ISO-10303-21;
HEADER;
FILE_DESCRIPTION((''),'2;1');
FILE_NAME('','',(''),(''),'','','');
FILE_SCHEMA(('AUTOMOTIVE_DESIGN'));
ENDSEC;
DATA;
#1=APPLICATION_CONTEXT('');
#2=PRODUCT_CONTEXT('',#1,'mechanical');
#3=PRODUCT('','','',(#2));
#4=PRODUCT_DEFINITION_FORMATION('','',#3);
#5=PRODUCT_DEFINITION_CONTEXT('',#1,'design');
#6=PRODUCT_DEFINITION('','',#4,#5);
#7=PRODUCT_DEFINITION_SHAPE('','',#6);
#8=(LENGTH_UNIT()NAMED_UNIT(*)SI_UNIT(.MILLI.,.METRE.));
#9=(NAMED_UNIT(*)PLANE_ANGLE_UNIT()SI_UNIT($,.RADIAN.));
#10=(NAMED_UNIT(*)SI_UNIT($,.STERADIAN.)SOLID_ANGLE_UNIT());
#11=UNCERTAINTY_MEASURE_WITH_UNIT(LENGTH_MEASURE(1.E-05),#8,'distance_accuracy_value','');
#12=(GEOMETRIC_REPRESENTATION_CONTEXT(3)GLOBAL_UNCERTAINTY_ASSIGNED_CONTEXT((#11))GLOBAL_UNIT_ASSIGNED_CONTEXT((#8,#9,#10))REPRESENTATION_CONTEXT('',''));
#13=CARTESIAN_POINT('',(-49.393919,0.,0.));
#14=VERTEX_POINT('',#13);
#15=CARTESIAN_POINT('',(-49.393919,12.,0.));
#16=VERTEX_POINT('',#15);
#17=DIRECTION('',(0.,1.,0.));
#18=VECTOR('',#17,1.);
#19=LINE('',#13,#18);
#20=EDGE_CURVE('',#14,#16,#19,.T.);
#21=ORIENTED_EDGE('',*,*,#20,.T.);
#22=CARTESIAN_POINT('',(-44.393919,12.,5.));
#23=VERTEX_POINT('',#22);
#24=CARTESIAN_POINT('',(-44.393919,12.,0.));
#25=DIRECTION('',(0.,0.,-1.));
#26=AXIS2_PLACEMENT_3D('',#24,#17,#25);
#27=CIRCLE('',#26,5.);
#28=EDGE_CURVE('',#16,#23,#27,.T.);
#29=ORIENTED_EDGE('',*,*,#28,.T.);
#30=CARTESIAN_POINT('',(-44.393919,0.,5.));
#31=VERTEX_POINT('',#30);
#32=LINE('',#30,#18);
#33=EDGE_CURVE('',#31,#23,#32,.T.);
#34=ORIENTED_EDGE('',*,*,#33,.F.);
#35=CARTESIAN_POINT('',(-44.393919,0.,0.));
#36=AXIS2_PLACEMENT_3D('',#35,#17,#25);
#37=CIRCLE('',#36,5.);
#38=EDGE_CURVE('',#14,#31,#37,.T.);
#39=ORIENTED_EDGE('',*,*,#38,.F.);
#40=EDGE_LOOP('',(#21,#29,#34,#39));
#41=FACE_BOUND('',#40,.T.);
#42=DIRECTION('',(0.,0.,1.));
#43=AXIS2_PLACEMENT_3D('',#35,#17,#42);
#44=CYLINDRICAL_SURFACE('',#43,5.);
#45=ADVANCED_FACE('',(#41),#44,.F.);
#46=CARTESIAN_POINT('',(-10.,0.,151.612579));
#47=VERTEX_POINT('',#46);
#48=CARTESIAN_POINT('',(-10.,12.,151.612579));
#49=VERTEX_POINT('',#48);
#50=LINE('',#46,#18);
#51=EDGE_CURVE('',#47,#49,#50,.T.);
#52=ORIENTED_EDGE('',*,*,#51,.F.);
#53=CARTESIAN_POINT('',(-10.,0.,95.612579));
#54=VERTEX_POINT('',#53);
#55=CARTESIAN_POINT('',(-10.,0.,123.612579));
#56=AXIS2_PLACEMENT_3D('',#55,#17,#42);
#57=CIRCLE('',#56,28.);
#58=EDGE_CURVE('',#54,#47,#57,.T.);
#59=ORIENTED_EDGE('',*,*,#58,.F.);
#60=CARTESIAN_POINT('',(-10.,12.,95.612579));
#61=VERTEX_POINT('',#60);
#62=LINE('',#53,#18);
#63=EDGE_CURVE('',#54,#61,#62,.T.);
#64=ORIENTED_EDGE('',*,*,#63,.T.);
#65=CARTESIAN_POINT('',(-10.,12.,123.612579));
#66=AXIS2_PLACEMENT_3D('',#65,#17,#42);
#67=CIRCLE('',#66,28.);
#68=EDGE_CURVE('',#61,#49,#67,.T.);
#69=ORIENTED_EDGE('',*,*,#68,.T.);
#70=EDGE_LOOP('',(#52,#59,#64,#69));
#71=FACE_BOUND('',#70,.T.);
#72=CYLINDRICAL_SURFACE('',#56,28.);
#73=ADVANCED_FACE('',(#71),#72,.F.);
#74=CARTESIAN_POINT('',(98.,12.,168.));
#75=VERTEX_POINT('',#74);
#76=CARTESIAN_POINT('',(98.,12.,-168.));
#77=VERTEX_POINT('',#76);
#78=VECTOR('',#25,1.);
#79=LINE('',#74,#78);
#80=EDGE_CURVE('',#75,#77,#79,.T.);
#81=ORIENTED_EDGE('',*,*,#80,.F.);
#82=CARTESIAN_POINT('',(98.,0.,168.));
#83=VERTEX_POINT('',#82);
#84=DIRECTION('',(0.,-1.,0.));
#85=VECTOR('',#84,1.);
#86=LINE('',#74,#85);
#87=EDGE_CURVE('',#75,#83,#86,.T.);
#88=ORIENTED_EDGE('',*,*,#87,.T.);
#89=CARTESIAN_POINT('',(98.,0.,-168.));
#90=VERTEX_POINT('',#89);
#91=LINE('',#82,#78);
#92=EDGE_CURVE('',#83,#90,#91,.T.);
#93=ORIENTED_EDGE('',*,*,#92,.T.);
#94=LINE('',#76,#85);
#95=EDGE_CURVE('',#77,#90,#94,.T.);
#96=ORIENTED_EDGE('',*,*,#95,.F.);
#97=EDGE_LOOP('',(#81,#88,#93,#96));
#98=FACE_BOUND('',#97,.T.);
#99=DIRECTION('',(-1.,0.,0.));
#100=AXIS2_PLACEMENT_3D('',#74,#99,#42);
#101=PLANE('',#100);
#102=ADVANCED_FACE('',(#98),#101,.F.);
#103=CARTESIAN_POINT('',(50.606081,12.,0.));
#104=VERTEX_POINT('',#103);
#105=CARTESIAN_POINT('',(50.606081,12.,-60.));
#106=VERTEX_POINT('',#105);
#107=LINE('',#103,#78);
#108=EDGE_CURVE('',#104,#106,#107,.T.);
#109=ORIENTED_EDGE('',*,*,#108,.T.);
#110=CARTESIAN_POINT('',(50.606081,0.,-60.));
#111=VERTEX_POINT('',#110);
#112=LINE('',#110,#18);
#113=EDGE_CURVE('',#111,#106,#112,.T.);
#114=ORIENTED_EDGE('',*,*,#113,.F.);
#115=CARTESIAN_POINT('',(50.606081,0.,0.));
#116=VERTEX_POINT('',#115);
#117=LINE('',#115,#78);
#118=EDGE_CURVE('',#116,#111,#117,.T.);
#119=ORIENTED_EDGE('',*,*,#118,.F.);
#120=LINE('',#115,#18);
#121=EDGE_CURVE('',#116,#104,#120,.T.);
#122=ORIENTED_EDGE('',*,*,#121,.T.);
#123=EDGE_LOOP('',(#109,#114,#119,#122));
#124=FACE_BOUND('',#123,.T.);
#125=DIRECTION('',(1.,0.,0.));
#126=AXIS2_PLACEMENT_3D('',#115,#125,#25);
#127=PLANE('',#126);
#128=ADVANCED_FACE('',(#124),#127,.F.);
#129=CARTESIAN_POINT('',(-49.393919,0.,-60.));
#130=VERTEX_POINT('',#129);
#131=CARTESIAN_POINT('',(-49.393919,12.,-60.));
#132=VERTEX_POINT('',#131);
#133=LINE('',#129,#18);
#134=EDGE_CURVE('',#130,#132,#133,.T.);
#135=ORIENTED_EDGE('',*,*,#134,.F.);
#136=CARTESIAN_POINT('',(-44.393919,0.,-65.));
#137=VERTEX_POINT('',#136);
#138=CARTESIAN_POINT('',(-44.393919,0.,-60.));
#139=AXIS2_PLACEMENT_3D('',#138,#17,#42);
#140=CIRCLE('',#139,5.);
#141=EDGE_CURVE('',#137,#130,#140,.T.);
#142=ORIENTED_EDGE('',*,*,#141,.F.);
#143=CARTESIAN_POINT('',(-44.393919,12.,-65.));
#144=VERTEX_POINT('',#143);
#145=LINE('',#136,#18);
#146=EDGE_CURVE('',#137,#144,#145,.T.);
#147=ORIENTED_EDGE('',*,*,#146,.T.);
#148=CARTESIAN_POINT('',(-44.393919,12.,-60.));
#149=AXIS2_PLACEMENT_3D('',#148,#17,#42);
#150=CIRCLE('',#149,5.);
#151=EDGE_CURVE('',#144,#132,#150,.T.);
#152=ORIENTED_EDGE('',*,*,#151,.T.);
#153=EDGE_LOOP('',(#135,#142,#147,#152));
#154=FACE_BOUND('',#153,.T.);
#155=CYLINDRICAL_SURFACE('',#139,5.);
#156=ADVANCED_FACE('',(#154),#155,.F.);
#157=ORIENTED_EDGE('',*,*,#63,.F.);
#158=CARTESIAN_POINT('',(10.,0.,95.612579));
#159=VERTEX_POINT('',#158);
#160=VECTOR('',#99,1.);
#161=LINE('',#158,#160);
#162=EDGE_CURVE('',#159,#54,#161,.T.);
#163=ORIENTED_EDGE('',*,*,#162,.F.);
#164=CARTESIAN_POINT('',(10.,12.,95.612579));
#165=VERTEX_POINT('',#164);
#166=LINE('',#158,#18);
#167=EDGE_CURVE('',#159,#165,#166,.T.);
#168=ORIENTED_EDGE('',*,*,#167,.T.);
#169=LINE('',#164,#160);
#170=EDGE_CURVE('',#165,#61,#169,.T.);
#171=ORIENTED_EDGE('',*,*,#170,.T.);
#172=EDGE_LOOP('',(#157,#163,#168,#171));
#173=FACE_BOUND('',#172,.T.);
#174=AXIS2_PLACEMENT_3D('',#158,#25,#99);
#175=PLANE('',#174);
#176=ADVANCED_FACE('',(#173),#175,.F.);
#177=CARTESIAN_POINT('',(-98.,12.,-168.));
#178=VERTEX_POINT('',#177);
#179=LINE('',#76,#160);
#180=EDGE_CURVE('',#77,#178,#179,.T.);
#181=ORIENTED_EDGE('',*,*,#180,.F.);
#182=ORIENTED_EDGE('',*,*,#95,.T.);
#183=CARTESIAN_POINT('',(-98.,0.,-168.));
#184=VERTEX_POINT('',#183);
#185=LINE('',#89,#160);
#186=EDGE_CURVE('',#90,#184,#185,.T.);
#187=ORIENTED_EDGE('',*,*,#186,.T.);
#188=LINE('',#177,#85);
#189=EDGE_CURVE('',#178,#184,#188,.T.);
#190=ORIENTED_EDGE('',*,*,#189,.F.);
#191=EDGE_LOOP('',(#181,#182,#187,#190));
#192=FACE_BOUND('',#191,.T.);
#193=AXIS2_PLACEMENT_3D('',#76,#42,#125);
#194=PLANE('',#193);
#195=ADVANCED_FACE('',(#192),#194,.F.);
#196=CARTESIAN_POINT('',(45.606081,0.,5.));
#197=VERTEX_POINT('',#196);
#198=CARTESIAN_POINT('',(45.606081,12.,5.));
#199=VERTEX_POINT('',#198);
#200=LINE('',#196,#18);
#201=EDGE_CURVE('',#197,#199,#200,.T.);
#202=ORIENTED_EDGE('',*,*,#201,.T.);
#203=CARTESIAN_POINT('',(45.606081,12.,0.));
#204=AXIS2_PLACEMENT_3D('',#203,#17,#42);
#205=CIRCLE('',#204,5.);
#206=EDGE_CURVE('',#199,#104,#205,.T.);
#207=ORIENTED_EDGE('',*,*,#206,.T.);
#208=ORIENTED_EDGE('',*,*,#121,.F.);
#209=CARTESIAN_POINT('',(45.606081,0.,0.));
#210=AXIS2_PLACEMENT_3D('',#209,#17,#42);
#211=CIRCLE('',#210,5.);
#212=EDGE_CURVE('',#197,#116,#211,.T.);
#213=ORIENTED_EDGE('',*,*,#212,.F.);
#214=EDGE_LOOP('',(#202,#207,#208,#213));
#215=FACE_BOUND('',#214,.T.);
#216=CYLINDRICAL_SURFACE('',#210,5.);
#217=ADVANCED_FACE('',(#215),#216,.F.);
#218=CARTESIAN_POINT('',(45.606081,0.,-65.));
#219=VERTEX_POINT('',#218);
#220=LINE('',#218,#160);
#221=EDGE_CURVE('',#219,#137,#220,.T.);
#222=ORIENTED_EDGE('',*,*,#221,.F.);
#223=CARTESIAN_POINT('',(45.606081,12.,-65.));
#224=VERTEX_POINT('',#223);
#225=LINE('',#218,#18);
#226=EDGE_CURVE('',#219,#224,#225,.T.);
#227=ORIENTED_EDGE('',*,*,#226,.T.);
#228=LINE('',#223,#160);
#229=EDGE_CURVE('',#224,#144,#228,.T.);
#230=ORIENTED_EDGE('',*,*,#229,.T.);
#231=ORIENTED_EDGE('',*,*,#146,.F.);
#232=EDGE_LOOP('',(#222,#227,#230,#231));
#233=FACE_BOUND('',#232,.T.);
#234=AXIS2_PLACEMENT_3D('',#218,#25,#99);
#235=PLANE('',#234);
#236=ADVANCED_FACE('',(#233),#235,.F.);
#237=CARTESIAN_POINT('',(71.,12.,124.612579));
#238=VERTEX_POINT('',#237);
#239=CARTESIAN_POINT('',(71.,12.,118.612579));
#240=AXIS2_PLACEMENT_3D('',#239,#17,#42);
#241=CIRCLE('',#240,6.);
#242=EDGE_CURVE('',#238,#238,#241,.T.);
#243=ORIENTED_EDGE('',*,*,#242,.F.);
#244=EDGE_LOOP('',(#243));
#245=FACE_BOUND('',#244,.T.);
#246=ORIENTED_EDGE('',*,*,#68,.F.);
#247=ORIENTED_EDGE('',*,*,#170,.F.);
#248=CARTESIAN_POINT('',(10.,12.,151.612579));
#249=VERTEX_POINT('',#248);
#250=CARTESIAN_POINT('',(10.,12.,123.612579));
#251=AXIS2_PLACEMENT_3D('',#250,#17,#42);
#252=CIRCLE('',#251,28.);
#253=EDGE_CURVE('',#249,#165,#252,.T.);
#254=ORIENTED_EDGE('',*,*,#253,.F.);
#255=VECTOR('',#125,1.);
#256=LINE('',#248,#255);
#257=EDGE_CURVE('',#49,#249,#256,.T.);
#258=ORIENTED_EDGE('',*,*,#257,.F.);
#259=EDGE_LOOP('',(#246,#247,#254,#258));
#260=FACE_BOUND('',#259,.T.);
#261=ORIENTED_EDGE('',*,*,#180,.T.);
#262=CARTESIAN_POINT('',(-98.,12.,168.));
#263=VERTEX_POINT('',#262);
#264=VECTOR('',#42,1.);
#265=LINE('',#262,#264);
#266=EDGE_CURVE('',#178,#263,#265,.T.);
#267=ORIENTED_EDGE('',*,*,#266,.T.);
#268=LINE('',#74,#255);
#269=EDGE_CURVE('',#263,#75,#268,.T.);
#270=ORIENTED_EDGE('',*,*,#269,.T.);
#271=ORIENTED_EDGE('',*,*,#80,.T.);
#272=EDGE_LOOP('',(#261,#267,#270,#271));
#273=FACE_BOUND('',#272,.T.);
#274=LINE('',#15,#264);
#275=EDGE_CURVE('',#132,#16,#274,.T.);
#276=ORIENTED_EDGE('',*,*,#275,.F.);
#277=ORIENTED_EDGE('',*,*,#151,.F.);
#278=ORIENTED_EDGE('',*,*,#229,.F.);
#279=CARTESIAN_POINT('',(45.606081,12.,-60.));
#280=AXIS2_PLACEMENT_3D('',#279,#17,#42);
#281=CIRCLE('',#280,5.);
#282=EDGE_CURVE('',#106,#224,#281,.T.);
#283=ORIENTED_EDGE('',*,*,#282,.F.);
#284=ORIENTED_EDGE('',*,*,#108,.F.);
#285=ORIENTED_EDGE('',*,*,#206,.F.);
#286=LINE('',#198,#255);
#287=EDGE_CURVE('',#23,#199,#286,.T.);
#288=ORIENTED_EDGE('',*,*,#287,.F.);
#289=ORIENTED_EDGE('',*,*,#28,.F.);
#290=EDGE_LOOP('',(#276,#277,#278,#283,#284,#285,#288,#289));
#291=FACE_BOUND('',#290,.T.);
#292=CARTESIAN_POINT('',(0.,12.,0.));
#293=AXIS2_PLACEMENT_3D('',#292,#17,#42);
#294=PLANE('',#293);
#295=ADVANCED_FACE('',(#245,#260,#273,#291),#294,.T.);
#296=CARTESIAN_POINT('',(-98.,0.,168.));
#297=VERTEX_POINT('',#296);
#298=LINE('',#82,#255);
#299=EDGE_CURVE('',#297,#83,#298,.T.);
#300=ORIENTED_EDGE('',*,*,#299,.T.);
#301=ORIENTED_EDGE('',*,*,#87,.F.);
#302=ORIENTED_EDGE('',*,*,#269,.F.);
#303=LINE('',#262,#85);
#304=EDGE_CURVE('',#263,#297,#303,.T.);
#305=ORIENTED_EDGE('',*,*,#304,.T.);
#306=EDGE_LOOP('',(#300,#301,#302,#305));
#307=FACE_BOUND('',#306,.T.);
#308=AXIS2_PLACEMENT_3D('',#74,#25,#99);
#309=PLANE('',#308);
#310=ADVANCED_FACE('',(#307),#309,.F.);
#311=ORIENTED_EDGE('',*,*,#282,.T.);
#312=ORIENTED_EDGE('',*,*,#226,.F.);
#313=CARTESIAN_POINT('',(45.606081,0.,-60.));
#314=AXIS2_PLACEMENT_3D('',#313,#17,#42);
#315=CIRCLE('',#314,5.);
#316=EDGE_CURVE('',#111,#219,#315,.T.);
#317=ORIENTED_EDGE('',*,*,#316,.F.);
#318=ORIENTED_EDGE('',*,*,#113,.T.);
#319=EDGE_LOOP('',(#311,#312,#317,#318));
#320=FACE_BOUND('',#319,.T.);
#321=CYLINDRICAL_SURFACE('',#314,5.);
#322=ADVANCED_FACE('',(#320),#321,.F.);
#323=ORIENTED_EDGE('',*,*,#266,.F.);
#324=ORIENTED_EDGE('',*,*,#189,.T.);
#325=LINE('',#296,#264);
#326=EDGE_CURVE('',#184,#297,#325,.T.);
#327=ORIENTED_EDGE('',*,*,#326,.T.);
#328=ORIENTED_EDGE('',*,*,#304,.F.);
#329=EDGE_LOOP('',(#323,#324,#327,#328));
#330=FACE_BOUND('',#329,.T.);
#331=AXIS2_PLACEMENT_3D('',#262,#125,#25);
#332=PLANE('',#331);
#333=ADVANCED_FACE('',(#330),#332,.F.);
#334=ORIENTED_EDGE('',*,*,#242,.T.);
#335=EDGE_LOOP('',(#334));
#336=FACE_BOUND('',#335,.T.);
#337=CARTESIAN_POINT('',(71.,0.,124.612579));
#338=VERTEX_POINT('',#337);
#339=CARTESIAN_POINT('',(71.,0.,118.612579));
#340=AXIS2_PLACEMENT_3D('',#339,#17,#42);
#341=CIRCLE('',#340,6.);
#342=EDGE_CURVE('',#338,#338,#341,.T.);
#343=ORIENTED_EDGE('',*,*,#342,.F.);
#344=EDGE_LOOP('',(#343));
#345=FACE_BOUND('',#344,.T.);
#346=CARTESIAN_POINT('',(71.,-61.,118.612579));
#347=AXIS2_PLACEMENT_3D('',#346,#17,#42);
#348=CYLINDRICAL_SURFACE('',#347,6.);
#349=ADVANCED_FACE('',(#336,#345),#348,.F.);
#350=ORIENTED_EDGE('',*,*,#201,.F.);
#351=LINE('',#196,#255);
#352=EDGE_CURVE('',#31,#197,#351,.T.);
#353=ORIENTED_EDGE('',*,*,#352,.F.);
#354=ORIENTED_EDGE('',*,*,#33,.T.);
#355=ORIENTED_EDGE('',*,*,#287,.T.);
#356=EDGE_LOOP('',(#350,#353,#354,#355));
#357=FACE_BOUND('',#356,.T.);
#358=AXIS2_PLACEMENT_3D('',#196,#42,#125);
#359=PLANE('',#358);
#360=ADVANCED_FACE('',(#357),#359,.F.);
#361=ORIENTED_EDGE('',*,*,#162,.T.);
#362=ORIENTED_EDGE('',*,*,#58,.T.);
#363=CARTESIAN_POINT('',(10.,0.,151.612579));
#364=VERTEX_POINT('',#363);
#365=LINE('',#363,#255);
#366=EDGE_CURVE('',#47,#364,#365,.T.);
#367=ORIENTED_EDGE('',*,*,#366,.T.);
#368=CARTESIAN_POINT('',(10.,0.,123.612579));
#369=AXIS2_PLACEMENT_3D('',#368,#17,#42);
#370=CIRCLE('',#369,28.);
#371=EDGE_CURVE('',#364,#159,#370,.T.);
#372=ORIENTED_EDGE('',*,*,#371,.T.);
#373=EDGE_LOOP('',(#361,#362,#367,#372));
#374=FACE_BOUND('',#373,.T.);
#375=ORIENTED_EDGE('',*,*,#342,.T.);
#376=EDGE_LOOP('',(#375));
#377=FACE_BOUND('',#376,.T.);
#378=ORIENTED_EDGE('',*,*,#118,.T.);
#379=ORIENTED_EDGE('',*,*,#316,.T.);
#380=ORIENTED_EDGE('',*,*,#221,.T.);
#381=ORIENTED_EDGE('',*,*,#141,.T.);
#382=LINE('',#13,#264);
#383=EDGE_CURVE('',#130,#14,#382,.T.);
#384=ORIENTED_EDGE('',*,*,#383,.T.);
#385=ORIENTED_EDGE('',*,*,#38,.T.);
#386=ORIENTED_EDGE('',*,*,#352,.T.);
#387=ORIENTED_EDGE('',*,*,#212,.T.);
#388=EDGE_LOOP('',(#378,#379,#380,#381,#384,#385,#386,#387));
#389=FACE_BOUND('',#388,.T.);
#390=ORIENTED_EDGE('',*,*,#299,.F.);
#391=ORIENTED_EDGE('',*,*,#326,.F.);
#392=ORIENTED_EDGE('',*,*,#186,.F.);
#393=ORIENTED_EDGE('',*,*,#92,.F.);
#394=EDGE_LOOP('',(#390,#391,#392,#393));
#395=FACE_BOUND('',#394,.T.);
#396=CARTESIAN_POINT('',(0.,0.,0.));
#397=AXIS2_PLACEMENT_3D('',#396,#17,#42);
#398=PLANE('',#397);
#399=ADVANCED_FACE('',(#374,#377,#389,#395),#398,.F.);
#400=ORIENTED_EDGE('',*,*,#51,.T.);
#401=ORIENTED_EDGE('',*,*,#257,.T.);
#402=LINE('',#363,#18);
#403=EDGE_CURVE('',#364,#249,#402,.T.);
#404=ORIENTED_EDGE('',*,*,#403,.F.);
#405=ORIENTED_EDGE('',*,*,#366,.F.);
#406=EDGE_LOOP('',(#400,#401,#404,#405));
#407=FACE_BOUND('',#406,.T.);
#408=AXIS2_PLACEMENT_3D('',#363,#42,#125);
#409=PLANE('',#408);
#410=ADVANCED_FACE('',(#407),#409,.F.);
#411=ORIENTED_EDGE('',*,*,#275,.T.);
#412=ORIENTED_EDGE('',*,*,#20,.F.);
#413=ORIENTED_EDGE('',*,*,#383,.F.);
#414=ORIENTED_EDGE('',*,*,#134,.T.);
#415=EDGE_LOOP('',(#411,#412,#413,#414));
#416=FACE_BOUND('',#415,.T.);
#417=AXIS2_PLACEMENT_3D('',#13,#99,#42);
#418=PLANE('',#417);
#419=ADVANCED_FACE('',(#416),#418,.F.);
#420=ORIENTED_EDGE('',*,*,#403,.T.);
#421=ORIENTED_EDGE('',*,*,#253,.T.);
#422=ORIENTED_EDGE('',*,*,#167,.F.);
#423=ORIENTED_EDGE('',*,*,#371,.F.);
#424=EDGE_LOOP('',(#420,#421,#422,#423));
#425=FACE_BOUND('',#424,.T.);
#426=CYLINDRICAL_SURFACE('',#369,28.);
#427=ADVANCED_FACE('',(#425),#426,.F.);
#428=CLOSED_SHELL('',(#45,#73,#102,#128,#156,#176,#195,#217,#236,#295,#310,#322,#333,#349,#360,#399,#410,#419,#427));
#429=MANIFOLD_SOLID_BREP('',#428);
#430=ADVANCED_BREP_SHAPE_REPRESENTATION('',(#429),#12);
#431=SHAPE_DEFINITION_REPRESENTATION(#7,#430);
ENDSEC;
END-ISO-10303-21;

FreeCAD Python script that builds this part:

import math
import FreeCAD as App
import Part
import Sketcher
from FreeCAD import Vector
Q = App.Units.Quantity


def add_polygon(sketch, points):
    """Adds a closed chain of lines whose ends are joined by coincident constraints."""
    first, n = sketch.GeometryCount, len(points)
    for a, b in zip(points, points[1:] + points[:1]):
        sketch.addGeometry(Part.LineSegment(App.Vector(*a, 0), App.Vector(*b, 0)), False)
    for i in range(n):
        sketch.addConstraint(Sketcher.Constraint("Coincident", first + i, 2, first + (i + 1) % n, 1))

doc = App.newDocument("Part")
body = doc.addObject("PartDesign::Body", "Body")

# Sketch on XZ plane
sketch1 = body.newObject("Sketcher::SketchObject", "Sketch")
sketch1.AttachmentSupport = (doc.getObject("XZ_Plane"), [""])
sketch1.MapMode = "FlatFace"
add_polygon(sketch1, [(-98, -168), (-98, 168), (98, 168), (98, -168)])  # lines 0-3
sketch1.addConstraint(Sketcher.Constraint("Vertical", 0))
sketch1.addConstraint(Sketcher.Constraint("Horizontal", 1))
sketch1.addConstraint(Sketcher.Constraint("Vertical", 2))
sketch1.addConstraint(Sketcher.Constraint("Horizontal", 3))
sketch1.addConstraint(Sketcher.Constraint("Symmetric", 0, 2, 2, 2, -1, 1))
sketch1.addConstraint(Sketcher.Constraint("DistanceX", 1, 1, 1, 2, Q("196 mm")))
sketch1.addConstraint(Sketcher.Constraint("DistanceY", 0, 1, 0, 2, Q("336 mm")))
pad1 = body.newObject("PartDesign::Pad", "Pad")
pad1.Profile = sketch1
pad1.Length = 12
pad1.Reversed = True

# Sketch on XZ plane
sketch2 = body.newObject("Sketcher::SketchObject", "Sketch001")
sketch2.AttachmentSupport = (doc.getObject("XZ_Plane"), [""])
sketch2.MapMode = "FlatFace"
sketch2.AttachmentOffset = App.Placement(Vector(0, 0, -12), App.Rotation())
sketch2.addGeometry(Part.LineSegment(Vector(-10, 152, 0), Vector(10, 152, 0)), False)
sketch2.addGeometry(Part.ArcOfCircle(Part.Circle(Vector(10, 124, 0), Vector(0, 0, 1), 28), math.radians(-90), math.radians(90)), False)
sketch2.addGeometry(Part.LineSegment(Vector(10, 96, 0), Vector(-10, 96, 0)), False)
sketch2.addGeometry(Part.ArcOfCircle(Part.Circle(Vector(-10, 124, 0), Vector(0, 0, 1), 28), math.radians(90), math.radians(270)), False)
sketch2.addConstraint(Sketcher.Constraint("Tangent", 0, 2, 1, 2))
sketch2.addConstraint(Sketcher.Constraint("Tangent", 1, 1, 2, 1))
sketch2.addConstraint(Sketcher.Constraint("Tangent", 2, 2, 3, 2))
sketch2.addConstraint(Sketcher.Constraint("Tangent", 3, 1, 0, 1))
sketch2.addConstraint(Sketcher.Constraint("Horizontal", 0))
sketch2.addConstraint(Sketcher.Constraint("Horizontal", 2))
sketch2.addConstraint(Sketcher.Constraint("Radius", 1, Q("28 mm")))
sketch2.addConstraint(Sketcher.Constraint("DistanceX", 0, 1, 0, 2, Q("20 mm")))
sketch2.addConstraint(Sketcher.Constraint("DistanceX", -1, 1, 1, 3, Q("10 mm")))
sketch2.addConstraint(Sketcher.Constraint("DistanceY", -1, 1, 1, 3, Q("123.612579 mm")))
pocket1 = body.newObject("PartDesign::Pocket", "Pocket")
pocket1.Profile = sketch2
pocket1.Length = 12
pocket1.Reversed = True

# Sketch on XZ plane
sketch3 = body.newObject("Sketcher::SketchObject", "Sketch002")
sketch3.AttachmentSupport = (doc.getObject("XZ_Plane"), [""])
sketch3.MapMode = "FlatFace"
sketch3.AttachmentOffset = App.Placement(Vector(0, 0, -12), App.Rotation())
sketch3.addGeometry(Part.LineSegment(Vector(-44, 5, 0), Vector(46, 5, 0)), False)
sketch3.addGeometry(Part.ArcOfCircle(Part.Circle(Vector(46, 0, 0), Vector(0, 0, 1), 5), math.radians(0), math.radians(90)), False)
sketch3.addGeometry(Part.LineSegment(Vector(51, 0, 0), Vector(51, -60, 0)), False)
sketch3.addGeometry(Part.ArcOfCircle(Part.Circle(Vector(46, -60, 0), Vector(0, 0, 1), 5), math.radians(-90), math.radians(0)), False)
sketch3.addGeometry(Part.LineSegment(Vector(46, -65, 0), Vector(-44, -65, 0)), False)
sketch3.addGeometry(Part.ArcOfCircle(Part.Circle(Vector(-44, -60, 0), Vector(0, 0, 1), 5), math.radians(180), math.radians(270)), False)
sketch3.addGeometry(Part.LineSegment(Vector(-49, -60, 0), Vector(-49, 0, 0)), False)
sketch3.addGeometry(Part.ArcOfCircle(Part.Circle(Vector(-44, 0, 0), Vector(0, 0, 1), 5), math.radians(90), math.radians(180)), False)
sketch3.addConstraint(Sketcher.Constraint("Tangent", 0, 2, 1, 2))
sketch3.addConstraint(Sketcher.Constraint("Tangent", 1, 1, 2, 1))
sketch3.addConstraint(Sketcher.Constraint("Tangent", 2, 2, 3, 2))
sketch3.addConstraint(Sketcher.Constraint("Tangent", 3, 1, 4, 1))
sketch3.addConstraint(Sketcher.Constraint("Tangent", 4, 2, 5, 2))
sketch3.addConstraint(Sketcher.Constraint("Tangent", 5, 1, 6, 1))
sketch3.addConstraint(Sketcher.Constraint("Tangent", 6, 2, 7, 2))
sketch3.addConstraint(Sketcher.Constraint("Tangent", 7, 1, 0, 1))
sketch3.addConstraint(Sketcher.Constraint("Horizontal", 0))
sketch3.addConstraint(Sketcher.Constraint("Vertical", 2))
sketch3.addConstraint(Sketcher.Constraint("Horizontal", 4))
sketch3.addConstraint(Sketcher.Constraint("Vertical", 6))
sketch3.addConstraint(Sketcher.Constraint("Equal", 1, 3))
sketch3.addConstraint(Sketcher.Constraint("Equal", 3, 5))
sketch3.addConstraint(Sketcher.Constraint("Equal", 5, 7))
sketch3.addConstraint(Sketcher.Constraint("PointOnObject", 1, 3, -1))
sketch3.addConstraint(Sketcher.Constraint("Radius", 1, Q("5 mm")))
sketch3.addConstraint(Sketcher.Constraint("DistanceX", 0, 1, 0, 2, Q("90 mm")))
sketch3.addConstraint(Sketcher.Constraint("DistanceY", 2, 2, 2, 1, Q("60 mm")))
sketch3.addConstraint(Sketcher.Constraint("DistanceX", -1, 1, 1, 3, Q("45.606081 mm")))
pocket2 = body.newObject("PartDesign::Pocket", "Pocket001")
pocket2.Profile = sketch3
pocket2.Length = 12
pocket2.Reversed = True

# Sketch on XZ plane
sketch4 = body.newObject("Sketcher::SketchObject", "Sketch003")
sketch4.AttachmentSupport = (doc.getObject("XZ_Plane"), [""])
sketch4.MapMode = "FlatFace"
sketch4.AttachmentOffset = App.Placement(Vector(0, 0, -12), App.Rotation())
sketch4.addGeometry(Part.Circle(Vector(71, 119, 0), Vector(0, 0, 1), 6), False)
sketch4.addConstraint(Sketcher.Constraint("Diameter", 0, Q("12 mm")))
sketch4.addConstraint(Sketcher.Constraint("DistanceX", -1, 1, 0, 3, Q("71 mm")))
sketch4.addConstraint(Sketcher.Constraint("DistanceY", -1, 1, 0, 3, Q("118.612579 mm")))
pocket3 = body.newObject("PartDesign::Pocket", "Pocket002")
pocket3.Profile = sketch4
pocket3.Length = 73
pocket3.Reversed = True

doc.recompute()
